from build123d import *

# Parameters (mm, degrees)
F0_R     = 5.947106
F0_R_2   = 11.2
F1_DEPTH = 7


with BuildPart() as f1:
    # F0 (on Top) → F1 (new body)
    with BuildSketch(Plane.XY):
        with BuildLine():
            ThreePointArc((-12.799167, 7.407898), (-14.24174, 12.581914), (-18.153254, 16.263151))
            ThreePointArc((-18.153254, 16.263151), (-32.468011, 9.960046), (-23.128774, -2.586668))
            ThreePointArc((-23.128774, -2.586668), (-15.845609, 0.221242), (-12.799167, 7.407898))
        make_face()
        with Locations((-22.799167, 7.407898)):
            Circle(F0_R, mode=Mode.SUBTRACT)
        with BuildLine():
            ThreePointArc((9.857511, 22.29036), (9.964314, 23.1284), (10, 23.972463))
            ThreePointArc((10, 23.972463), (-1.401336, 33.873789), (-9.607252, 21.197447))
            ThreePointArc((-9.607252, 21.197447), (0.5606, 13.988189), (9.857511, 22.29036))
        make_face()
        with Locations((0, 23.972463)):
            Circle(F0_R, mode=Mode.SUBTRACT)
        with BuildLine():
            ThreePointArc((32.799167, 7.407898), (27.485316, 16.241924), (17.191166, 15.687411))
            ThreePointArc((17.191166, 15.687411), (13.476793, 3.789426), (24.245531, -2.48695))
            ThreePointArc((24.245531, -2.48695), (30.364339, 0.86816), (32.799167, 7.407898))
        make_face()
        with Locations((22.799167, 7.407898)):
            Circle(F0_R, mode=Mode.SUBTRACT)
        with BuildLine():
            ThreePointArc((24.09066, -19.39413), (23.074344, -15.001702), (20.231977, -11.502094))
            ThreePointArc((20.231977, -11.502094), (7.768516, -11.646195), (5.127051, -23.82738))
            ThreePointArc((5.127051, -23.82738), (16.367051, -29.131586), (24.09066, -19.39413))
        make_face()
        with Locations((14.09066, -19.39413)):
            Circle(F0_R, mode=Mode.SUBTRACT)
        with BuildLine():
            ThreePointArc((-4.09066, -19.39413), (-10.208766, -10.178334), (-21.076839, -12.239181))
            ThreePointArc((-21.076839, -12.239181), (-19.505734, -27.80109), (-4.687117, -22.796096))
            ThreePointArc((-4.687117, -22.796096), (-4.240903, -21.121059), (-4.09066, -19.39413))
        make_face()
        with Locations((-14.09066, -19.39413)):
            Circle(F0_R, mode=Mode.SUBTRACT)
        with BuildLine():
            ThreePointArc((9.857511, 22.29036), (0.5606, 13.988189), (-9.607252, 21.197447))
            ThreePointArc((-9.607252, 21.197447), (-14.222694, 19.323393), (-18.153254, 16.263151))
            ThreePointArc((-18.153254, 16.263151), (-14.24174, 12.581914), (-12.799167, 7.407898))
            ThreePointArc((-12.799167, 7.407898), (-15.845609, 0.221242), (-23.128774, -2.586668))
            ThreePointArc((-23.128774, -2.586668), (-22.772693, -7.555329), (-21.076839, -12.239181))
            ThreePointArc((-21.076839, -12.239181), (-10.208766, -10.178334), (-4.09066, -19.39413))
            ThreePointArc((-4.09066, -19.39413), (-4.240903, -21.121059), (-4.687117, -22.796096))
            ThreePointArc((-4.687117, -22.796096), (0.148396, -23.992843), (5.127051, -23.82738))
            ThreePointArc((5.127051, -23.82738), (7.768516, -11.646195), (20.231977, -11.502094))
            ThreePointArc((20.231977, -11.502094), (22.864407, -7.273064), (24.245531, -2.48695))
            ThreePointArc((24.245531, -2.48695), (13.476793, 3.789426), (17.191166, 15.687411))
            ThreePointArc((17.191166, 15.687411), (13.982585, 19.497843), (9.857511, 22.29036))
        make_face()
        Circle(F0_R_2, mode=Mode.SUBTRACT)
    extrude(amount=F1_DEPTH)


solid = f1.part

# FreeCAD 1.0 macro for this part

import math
import FreeCAD as App
import Part
import Sketcher
from FreeCAD import Vector
Q = App.Units.Quantity

doc = App.newDocument("Part")
body = doc.addObject("PartDesign::Body", "Body")

# Sketch on XY plane
sketch1 = body.newObject("Sketcher::SketchObject", "Sketch")
sketch1.AttachmentSupport = (doc.getObject("XY_Plane"), [""])
sketch1.MapMode = "FlatFace"
sketch1.addGeometry([
    Part.ArcOfCircle(Part.Circle(Vector(-22.799167, 7.407899, 0), Vector(0, 0, 1), 10), math.radians(62.316226), math.radians(268.111148)),  # 0
    Part.ArcOfCircle(Part.Circle(Vector(-5.052153, -3.78829, 0), Vector(0, 0, 1), 18.116515), math.radians(176.196926), math.radians(207.805686)),  # 1
    Part.ArcOfCircle(Part.Circle(Vector(-14.09066, -19.39413, 0), Vector(0, 0, 1), 10), math.radians(134.316223), math.radians(340.111149)),  # 2
    Part.ArcOfCircle(Part.Circle(Vector(2.041677, -5.975519, 0), Vector(0, 0, 1), 18.116525), math.radians(-111.803063), math.radians(-80.19432)),  # 3
    Part.ArcOfCircle(Part.Circle(Vector(14.09066, -19.394131, 0), Vector(0, 0, 1), 10), math.radians(-153.68378), math.radians(0.000003)),  # 4
    Part.ArcOfCircle(Part.Circle(Vector(14.090659, -19.39413, 0), Vector(0, 0, 1), 10.000001), math.radians(0), math.radians(52.111143)),  # 5
    Part.ArcOfCircle(Part.Circle(Vector(6.313986, 0.095206, 0), Vector(0, 0, 1), 18.116507), math.radians(-39.803078), math.radians(-8.194305)),  # 6
    Part.ArcOfCircle(Part.Circle(Vector(22.799169, 7.407897, 0), Vector(0, 0, 1), 9.999998), math.radians(-81.683783), math.radians(0.000004)),  # 7
    Part.ArcOfCircle(Part.Circle(Vector(22.799167, 7.407898, 0), Vector(0, 0, 1), 10), math.radians(-0.000002), math.radians(124.111146)),  # 8
    Part.ArcOfCircle(Part.Circle(Vector(1.860587, 6.034382, 0), Vector(0, 0, 1), 18.116501), math.radians(32.196919), math.radians(63.805701)),  # 9
    Part.ArcOfCircle(Part.Circle(Vector(-0.000013, 23.972466, 0), Vector(0, 0, 1), 10.000013), math.radians(-9.683783), math.radians(-0.000017)),  # 10
    Part.ArcOfCircle(Part.Circle(Vector(0, 23.972463, 0), Vector(0, 0, 1), 10), math.radians(0.000001), math.radians(196.111148)),  # 11
    Part.ArcOfCircle(Part.Circle(Vector(-5.164075, 3.634229, 0), Vector(0, 0, 1), 18.116524), math.radians(104.196934), math.radians(135.805675)),  # 12
    Part.Circle(Vector(-14.09066, -19.39413, 0), Vector(0, 0, 1), 5.947106),  # 13
    Part.Circle(Vector(14.09066, -19.39413, 0), Vector(0, 0, 1), 5.947106),  # 14
    Part.Circle(Vector(0, 0, 0), Vector(0, 0, 1), 11.2),  # 15
    Part.Circle(Vector(-22.799167, 7.407898, 0), Vector(0, 0, 1), 5.947106),  # 16
    Part.Circle(Vector(22.799167, 7.407898, 0), Vector(0, 0, 1), 5.947106),  # 17
    Part.Circle(Vector(0, 23.972463, 0), Vector(0, 0, 1), 5.947106),  # 18
], False)
sketch1.addConstraint([
    Sketcher.Constraint("Coincident", 0, 2, 1, 1),
    Sketcher.Constraint("Coincident", 1, 2, 2, 1),
    Sketcher.Constraint("Coincident", 2, 2, 3, 1),
    Sketcher.Constraint("Coincident", 3, 2, 4, 1),
    Sketcher.Constraint("Tangent", 4, 2, 5, 1),
    Sketcher.Constraint("Coincident", 5, 2, 6, 1),
    Sketcher.Constraint("Coincident", 6, 2, 7, 1),
    Sketcher.Constraint("Tangent", 7, 2, 8, 1),
    Sketcher.Constraint("Coincident", 8, 2, 9, 1),
    Sketcher.Constraint("Coincident", 9, 2, 10, 1),
    Sketcher.Constraint("Tangent", 10, 2, 11, 1),
    Sketcher.Constraint("Coincident", 11, 2, 12, 1),
    Sketcher.Constraint("Coincident", 12, 2, 0, 1),
    Sketcher.Constraint("Coincident", 15, 3, -1, 1),
    Sketcher.Constraint("Coincident", 13, 3, 2, 3),
    Sketcher.Constraint("Coincident", 14, 3, 4, 3),
    Sketcher.Constraint("Coincident", 16, 3, 0, 3),
    Sketcher.Constraint("Coincident", 17, 3, 7, 3),
    Sketcher.Constraint("Coincident", 18, 3, 11, 3),
    Sketcher.Constraint("Equal", 0, 2),
    Sketcher.Constraint("Equal", 2, 4),
    Sketcher.Constraint("Equal", 4, 5),
    Sketcher.Constraint("Equal", 4, 7),
    Sketcher.Constraint("Equal", 7, 8),
    Sketcher.Constraint("Equal", 8, 11),
    Sketcher.Constraint("Equal", 3, 12),
    Sketcher.Constraint("Equal", 13, 14),
    Sketcher.Constraint("Equal", 14, 16),
    Sketcher.Constraint("Equal", 16, 17),
    Sketcher.Constraint("Equal", 17, 18),
    Sketcher.Constraint("Symmetric", 2, 3, 4, 3, -2),
    Sketcher.Constraint("Symmetric", 0, 3, 7, 3, -2),
    Sketcher.Constraint("PointOnObject", 11, 3, -2),
    Sketcher.Constraint("Horizontal", 14, 3, 4, 2),
    Sketcher.Constraint("Horizontal", 17, 3, 7, 2),
    Sketcher.Constraint("Horizontal", 18, 3, 10, 2),
    Sketcher.Constraint("Radius", 0, Q("10 mm")),
    Sketcher.Constraint("Diameter", 15, Q("22.4 mm")),
    Sketcher.Constraint("Radius", 9, Q("18.116501 mm")),
    Sketcher.Constraint("Diameter", 13, Q("11.894212 mm")),
    Sketcher.Constraint("Radius", 1, Q("18.116515 mm")),
    Sketcher.Constraint("Radius", 3, Q("18.116525 mm")),
    Sketcher.Constraint("Radius", 6, Q("18.116507 mm")),
    Sketcher.Constraint("Radius", 10, Q("10.000013 mm")),
    Sketcher.Constraint("DistanceX", 10, 3, 6, 3, Q("6.313999 mm")),
    Sketcher.Constraint("DistanceX", 8, 2, 8, 3, Q("5.608001 mm")),
    Sketcher.Constraint("DistanceX", 12, 2, 11, 2, Q("8.546002 mm")),
    Sketcher.Constraint("DistanceY", -1, 1, 0, 3, Q("7.407899 mm")),
    Sketcher.Constraint("DistanceX", 9, 3, 6, 3, Q("4.453399 mm")),
    Sketcher.Constraint("DistanceY", 3, 3, 9, 3, Q("12.009901 mm")),
    Sketcher.Constraint("DistanceX", 0, 2, 12, 3, Q("17.964699 mm")),
    Sketcher.Constraint("DistanceY", 5, 2, 6, 3, Q("11.5973 mm")),
    Sketcher.Constraint("DistanceY", 1, 3, -1, 1, Q("3.78829 mm")),
    Sketcher.Constraint("DistanceX", 2, 3, -1, 1, Q("14.09066 mm")),
    Sketcher.Constraint("DistanceY", 2, 3, -1, 1, Q("19.39413 mm")),
    Sketcher.Constraint("DistanceY", 3, 3, -1, 1, Q("5.975519 mm")),
    Sketcher.Constraint("DistanceY", -1, 1, 12, 3, Q("3.634229 mm")),
    Sketcher.Constraint("DistanceX", 1, 2, -1, 1, Q("21.076839 mm")),
    Sketcher.Constraint("DistanceX", -1, 1, 3, 2, Q("5.127051 mm")),
])
pad1 = body.newObject("PartDesign::Pad", "Pad")
pad1.Profile = sketch1
pad1.Length = 7

doc.recompute()
